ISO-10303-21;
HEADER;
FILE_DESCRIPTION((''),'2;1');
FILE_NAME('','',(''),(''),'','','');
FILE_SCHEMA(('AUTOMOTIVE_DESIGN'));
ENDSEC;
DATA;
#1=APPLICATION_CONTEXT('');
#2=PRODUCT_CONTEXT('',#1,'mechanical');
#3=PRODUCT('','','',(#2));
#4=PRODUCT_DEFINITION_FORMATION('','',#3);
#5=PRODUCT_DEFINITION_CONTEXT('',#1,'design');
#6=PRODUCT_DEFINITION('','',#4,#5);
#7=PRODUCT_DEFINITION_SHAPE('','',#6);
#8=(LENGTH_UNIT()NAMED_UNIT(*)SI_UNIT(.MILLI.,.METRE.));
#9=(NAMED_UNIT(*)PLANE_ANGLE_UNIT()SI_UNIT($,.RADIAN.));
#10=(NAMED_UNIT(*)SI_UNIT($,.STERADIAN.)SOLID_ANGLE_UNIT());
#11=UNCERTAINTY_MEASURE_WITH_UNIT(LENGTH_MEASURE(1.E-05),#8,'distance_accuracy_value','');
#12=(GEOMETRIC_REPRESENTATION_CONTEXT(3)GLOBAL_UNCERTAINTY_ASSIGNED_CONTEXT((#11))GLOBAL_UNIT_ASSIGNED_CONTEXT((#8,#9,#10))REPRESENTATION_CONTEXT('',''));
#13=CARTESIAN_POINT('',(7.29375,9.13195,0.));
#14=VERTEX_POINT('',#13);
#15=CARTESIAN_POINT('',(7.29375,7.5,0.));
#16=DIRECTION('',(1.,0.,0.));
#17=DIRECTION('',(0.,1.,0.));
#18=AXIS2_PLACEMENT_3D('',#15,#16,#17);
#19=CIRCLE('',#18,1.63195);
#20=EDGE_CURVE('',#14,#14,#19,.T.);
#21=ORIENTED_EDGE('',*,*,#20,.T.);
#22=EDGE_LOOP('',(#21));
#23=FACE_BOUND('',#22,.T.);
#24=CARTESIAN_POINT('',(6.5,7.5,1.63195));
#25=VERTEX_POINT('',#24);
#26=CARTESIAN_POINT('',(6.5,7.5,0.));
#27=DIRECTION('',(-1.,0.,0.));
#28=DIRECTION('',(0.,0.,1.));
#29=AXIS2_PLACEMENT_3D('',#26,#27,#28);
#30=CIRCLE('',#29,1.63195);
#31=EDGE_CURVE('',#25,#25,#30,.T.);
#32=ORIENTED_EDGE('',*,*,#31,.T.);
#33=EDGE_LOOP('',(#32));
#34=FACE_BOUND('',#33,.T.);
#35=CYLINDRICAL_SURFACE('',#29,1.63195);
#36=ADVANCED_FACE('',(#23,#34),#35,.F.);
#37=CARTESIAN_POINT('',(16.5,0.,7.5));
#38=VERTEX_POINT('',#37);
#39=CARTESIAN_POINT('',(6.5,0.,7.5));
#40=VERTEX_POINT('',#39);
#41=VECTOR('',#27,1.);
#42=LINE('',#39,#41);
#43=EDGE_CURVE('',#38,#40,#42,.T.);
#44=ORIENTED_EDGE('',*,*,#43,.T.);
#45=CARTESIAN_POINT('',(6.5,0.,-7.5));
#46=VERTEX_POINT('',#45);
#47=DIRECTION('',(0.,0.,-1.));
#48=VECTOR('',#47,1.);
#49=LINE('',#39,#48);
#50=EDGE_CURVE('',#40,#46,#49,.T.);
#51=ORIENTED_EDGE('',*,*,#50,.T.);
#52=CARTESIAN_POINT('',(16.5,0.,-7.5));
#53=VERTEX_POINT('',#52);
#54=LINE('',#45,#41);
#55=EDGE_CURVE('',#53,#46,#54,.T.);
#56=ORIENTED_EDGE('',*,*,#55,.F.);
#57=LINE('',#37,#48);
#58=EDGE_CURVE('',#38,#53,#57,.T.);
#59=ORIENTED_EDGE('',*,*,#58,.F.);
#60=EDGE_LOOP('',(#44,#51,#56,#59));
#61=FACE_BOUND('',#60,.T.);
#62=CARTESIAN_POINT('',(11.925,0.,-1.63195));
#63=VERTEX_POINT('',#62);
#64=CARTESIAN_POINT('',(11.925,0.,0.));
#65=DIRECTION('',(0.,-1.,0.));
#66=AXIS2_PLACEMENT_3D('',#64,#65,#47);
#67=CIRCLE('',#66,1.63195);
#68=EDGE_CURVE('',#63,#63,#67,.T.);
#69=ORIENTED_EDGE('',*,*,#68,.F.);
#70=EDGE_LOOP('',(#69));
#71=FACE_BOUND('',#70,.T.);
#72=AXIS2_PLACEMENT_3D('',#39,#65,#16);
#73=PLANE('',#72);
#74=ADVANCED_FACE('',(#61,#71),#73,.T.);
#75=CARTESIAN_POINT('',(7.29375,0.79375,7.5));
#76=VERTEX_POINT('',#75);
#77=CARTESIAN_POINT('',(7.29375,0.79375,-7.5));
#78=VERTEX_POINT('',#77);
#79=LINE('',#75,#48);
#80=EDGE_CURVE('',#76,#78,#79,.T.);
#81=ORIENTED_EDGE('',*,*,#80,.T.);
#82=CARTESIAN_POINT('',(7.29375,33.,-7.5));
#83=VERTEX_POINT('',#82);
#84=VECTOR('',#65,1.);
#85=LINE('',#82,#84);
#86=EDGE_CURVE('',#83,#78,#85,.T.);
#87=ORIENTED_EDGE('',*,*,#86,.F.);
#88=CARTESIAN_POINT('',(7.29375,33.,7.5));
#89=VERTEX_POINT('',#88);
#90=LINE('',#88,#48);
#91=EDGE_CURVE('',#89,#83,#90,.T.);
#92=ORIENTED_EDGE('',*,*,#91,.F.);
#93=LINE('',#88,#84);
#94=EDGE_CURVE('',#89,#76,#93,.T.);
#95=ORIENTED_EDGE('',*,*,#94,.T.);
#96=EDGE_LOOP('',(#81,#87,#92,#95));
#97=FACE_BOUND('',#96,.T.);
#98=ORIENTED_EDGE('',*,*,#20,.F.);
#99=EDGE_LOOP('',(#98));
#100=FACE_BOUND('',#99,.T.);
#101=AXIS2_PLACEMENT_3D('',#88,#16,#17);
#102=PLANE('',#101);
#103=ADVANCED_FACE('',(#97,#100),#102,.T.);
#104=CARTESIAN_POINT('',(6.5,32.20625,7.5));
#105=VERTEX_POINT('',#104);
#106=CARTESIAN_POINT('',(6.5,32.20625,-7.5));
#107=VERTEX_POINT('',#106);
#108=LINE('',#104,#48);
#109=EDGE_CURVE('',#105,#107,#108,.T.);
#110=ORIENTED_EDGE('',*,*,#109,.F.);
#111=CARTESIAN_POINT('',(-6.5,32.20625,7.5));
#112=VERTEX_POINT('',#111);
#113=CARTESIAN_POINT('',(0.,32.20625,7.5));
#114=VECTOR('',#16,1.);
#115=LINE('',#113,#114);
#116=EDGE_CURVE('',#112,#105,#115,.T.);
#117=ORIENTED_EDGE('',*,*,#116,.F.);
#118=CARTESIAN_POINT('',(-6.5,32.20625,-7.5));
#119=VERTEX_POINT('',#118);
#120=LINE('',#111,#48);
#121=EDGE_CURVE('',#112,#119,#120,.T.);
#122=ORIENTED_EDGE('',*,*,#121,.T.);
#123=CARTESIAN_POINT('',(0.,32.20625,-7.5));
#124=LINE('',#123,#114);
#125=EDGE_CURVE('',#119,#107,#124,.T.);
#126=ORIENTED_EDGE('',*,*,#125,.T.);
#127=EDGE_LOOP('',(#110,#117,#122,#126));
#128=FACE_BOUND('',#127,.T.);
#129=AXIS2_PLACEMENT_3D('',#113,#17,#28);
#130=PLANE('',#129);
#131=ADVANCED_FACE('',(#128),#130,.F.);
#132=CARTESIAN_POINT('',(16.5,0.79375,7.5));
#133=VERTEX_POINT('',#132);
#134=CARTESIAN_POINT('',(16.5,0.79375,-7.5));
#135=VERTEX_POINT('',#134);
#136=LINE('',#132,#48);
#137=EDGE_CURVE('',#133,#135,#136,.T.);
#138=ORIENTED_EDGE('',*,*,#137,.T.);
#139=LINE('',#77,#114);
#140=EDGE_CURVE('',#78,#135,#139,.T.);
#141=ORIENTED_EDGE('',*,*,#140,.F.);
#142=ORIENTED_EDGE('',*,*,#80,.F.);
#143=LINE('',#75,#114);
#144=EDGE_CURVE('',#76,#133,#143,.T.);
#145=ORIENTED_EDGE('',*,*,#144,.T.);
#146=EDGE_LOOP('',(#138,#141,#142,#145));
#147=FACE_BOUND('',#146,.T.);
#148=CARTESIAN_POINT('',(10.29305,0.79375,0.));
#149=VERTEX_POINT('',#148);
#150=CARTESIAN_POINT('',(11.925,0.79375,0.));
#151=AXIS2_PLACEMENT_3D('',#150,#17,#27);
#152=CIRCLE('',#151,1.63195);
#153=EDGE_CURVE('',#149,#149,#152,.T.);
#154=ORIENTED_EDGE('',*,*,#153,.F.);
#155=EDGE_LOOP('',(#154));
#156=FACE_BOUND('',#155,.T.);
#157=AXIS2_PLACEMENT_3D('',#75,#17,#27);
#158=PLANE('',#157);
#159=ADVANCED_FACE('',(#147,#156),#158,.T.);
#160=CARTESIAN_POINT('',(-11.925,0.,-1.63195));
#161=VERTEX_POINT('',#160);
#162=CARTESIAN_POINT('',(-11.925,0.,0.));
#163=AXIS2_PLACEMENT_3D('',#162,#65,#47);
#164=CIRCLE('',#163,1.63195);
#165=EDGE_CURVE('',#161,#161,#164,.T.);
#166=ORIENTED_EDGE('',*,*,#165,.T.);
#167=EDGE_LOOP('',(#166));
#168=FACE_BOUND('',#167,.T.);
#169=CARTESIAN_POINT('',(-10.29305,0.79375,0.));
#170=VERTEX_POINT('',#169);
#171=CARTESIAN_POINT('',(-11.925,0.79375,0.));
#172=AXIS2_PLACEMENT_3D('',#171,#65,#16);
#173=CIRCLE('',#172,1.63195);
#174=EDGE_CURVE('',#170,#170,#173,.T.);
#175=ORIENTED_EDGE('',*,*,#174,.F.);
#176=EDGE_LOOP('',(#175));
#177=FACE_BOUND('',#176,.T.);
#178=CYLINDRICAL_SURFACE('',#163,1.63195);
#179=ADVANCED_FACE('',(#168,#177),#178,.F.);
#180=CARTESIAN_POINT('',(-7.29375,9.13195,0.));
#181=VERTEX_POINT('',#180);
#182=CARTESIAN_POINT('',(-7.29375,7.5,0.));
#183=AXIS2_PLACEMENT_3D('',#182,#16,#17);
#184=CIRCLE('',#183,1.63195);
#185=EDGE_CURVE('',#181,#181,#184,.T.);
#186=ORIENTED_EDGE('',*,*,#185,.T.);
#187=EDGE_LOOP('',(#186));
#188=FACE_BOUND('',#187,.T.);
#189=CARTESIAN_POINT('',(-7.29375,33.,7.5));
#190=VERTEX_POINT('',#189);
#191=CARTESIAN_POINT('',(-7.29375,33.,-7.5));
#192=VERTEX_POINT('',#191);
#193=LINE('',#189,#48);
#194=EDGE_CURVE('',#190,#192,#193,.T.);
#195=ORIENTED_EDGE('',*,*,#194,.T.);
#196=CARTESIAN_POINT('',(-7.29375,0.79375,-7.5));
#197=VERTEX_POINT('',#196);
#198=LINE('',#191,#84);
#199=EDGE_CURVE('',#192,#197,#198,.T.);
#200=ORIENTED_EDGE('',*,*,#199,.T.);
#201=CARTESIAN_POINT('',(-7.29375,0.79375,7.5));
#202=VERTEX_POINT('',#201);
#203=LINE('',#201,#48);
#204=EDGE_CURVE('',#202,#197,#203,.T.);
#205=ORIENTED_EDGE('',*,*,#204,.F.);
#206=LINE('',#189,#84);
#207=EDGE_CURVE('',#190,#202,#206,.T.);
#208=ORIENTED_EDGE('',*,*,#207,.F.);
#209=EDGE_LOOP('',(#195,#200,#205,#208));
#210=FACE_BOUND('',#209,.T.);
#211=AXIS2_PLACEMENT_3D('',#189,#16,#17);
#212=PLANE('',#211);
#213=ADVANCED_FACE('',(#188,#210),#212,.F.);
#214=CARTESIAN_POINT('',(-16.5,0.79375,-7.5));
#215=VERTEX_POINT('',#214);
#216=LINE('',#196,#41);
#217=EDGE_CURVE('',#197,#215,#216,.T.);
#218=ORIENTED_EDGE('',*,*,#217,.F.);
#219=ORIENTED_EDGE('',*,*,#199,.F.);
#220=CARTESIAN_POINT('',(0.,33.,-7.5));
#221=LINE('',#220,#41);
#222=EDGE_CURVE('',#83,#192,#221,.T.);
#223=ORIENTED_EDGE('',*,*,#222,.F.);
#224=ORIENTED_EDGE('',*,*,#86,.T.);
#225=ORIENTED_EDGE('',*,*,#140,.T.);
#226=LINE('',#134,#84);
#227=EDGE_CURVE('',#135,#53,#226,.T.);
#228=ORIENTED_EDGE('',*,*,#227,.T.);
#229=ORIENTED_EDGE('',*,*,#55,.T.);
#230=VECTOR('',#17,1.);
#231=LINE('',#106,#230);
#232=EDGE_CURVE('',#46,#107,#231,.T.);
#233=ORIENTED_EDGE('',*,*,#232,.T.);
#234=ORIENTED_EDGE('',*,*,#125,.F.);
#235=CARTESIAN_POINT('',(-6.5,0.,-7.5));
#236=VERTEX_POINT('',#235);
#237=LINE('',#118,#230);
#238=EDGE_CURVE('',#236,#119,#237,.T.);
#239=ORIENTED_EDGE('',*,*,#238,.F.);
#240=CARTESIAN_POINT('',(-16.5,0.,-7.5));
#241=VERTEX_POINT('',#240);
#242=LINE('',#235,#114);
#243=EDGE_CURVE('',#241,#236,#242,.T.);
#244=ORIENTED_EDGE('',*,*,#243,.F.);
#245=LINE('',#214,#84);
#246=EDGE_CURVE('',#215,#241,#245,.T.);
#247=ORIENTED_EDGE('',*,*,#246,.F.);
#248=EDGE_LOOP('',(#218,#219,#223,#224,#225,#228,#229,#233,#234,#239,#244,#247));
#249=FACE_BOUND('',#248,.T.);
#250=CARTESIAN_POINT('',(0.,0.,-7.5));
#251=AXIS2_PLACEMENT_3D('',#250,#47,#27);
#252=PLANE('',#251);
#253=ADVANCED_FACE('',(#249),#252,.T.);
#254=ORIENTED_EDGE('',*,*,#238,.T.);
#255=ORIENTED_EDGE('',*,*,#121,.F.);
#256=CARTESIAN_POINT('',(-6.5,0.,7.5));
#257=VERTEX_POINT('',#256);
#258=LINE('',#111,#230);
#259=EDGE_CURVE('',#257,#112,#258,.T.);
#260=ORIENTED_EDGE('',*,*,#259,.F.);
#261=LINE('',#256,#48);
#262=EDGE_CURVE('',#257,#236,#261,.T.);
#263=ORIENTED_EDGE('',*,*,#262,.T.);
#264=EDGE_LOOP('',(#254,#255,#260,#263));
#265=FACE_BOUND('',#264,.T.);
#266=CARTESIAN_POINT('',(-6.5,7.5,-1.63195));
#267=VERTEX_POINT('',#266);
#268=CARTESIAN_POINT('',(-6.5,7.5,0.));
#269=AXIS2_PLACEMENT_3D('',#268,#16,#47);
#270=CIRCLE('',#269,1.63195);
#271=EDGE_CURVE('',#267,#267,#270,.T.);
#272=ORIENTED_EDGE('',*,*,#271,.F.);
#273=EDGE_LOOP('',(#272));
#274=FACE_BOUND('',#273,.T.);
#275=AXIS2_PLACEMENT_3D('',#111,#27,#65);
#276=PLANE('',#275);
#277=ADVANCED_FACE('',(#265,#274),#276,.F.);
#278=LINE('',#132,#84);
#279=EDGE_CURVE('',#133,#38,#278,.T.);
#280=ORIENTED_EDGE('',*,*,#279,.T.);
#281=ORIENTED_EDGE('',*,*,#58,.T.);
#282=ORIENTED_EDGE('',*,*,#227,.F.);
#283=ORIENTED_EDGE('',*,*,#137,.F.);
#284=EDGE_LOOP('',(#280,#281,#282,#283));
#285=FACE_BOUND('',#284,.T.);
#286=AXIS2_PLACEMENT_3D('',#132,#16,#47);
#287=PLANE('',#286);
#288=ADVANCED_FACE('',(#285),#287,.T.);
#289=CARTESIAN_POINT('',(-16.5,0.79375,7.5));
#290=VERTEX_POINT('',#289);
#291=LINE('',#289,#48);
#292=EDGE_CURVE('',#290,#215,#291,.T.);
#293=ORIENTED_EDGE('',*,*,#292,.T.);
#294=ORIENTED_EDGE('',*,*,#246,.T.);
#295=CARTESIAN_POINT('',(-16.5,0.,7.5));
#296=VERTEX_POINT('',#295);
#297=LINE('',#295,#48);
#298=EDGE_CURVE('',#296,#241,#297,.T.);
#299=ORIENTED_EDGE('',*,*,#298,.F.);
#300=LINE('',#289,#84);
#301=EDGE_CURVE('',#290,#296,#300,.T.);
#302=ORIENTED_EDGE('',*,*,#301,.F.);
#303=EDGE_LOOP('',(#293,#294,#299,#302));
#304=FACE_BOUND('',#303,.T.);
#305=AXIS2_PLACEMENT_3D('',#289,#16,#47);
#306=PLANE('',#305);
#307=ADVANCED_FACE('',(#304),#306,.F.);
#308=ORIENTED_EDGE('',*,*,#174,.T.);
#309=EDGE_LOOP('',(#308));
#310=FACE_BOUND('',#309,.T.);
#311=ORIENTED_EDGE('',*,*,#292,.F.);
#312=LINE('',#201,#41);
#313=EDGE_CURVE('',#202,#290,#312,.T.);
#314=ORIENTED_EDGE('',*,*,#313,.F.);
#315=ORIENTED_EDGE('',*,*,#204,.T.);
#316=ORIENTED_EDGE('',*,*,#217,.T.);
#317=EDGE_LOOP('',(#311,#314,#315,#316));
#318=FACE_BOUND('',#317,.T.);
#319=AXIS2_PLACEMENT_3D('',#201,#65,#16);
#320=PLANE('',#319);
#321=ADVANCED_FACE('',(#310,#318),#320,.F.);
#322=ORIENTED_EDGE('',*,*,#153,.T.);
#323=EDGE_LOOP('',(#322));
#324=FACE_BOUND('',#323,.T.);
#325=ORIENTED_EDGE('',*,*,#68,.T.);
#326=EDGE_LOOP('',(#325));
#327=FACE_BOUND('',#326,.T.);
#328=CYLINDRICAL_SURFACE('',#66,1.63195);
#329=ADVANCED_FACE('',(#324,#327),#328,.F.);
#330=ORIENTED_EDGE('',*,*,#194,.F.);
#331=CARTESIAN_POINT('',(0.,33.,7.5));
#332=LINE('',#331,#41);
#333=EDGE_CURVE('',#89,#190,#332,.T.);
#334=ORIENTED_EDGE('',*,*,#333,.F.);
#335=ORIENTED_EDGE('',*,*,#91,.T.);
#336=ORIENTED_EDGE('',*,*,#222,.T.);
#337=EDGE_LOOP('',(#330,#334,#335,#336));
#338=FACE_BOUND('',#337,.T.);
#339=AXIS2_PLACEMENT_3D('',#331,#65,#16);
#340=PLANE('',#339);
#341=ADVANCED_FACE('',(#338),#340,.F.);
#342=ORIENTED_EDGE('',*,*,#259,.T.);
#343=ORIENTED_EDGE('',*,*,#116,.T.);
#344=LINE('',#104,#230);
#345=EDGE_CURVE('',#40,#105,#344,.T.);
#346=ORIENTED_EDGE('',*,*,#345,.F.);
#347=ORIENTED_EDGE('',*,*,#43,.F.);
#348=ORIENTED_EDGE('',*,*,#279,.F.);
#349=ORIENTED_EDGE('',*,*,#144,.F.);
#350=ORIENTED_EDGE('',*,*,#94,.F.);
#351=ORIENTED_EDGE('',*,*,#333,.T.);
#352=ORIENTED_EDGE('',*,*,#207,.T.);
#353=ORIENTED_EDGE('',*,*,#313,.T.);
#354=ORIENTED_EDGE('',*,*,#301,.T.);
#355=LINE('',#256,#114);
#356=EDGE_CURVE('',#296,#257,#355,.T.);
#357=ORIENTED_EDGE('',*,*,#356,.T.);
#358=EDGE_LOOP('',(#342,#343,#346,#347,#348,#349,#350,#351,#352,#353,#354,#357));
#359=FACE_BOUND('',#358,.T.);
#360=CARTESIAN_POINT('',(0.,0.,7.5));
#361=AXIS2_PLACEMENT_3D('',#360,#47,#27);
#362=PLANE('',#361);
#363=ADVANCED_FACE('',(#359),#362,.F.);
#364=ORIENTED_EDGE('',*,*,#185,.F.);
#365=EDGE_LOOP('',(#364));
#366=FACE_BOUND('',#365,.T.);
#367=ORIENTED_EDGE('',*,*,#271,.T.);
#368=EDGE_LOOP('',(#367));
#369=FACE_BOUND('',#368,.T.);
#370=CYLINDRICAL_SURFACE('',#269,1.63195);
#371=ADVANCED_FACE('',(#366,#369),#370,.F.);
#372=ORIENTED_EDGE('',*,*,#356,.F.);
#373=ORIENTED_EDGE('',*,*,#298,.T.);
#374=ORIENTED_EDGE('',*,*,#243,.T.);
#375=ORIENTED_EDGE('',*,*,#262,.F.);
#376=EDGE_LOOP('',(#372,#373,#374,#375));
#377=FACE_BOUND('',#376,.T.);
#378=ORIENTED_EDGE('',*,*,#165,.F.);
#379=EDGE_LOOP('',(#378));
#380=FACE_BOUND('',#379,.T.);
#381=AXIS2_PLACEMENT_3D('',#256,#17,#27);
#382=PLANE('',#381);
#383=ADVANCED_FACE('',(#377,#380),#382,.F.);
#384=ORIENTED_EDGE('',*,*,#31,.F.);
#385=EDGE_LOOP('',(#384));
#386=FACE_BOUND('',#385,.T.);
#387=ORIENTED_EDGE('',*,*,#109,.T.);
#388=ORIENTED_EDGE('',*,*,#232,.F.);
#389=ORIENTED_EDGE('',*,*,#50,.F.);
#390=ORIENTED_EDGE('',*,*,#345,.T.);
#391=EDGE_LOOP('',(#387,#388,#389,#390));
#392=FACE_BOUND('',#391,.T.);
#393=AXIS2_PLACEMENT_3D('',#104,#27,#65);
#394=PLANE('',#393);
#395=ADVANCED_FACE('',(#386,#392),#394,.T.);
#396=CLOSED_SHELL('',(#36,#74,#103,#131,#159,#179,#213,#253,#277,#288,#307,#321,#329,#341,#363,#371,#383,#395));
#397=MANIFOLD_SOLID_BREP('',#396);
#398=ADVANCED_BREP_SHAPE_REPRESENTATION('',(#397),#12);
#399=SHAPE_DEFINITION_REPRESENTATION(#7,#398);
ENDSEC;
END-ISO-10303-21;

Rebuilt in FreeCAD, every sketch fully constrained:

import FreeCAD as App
import Part
import Sketcher
from FreeCAD import Vector


def add_polygon(sketch, points):
    """Adds a closed chain of lines whose ends are joined by coincident constraints."""
    first, n = sketch.GeometryCount, len(points)
    for a, b in zip(points, points[1:] + points[:1]):
        sketch.addGeometry(Part.LineSegment(App.Vector(*a, 0), App.Vector(*b, 0)), False)
    for i in range(n):
        sketch.addConstraint(Sketcher.Constraint("Coincident", first + i, 2, first + (i + 1) % n, 1))

doc = App.newDocument("Part")
body = doc.addObject("PartDesign::Body", "Body")

# Sketch on XY plane
sketch1 = body.newObject("Sketcher::SketchObject", "Sketch")
sketch1.AttachmentSupport = (doc.getObject("XY_Plane"), [""])
sketch1.MapMode = "FlatFace"
add_polygon(sketch1, [(-6.5, 32.20625), (0, 32.20625), (0, 33), (-7.29375, 33), (-7.29375, 0.79375), (-16.5, 0.79375), (-16.5, 0), (-6.5, 0)])  # lines 0-7
sketch1.addConstraint(Sketcher.Constraint("Horizontal", 0))
sketch1.addConstraint(Sketcher.Constraint("Vertical", 1))
sketch1.addConstraint(Sketcher.Constraint("Horizontal", 2))
sketch1.addConstraint(Sketcher.Constraint("Vertical", 3))
sketch1.addConstraint(Sketcher.Constraint("Horizontal", 4))
sketch1.addConstraint(Sketcher.Constraint("Vertical", 5))
sketch1.addConstraint(Sketcher.Constraint("Horizontal", 6))
sketch1.addConstraint(Sketcher.Constraint("Vertical", 7))
sketch1.addConstraint(Sketcher.Constraint("PointOnObject", 0, 2, -2))
sketch1.addConstraint(Sketcher.Constraint("PointOnObject", 5, 2, -1))
sketch1.addConstraint(Sketcher.Constraint("Equal", 1, 5))
sketch1.addConstraint(Sketcher.Constraint("DistanceX", 6, 1, 6, 2, 10.0))
sketch1.addConstraint(Sketcher.Constraint("DistanceX", 0, 1, 0, 2, 6.5))
sketch1.addConstraint(Sketcher.Constraint("DistanceY", -1, 1, 1, 2, 33.0))
sketch1.addConstraint(Sketcher.Constraint("DistanceX", 2, 2, 2, 1, 7.29375))
sketch1.addConstraint(Sketcher.Constraint("DistanceY", 1, 1, 1, 2, 0.79375))
pad1 = body.newObject("PartDesign::Pad", "Pad")
pad1.Profile = sketch1
pad1.Length = 15
pad1.Midplane = True

# Sketch on YZ plane
sketch2 = body.newObject("Sketcher::SketchObject", "Sketch001")
sketch2.AttachmentSupport = (doc.getObject("YZ_Plane"), [""])
sketch2.MapMode = "FlatFace"
sketch2.AttachmentOffset = App.Placement(Vector(0, 0, -6.5), App.Rotation())
sketch2.addGeometry(Part.Circle(Vector(7.5, 0, 0), Vector(0, 0, 1), 1.63195), False)
sketch2.addConstraint(Sketcher.Constraint("PointOnObject", 0, 3, -1))
sketch2.addConstraint(Sketcher.Constraint("Diameter", 0, 3.2639))
sketch2.addConstraint(Sketcher.Constraint("DistanceX", -1, 1, 0, 3, 7.5))
doc.recompute()
hole = body.newObject("PartDesign::Hole", "Hole")
hole.Profile = sketch2
hole.ThreadType = "None"
hole.Diameter = 3.2639
hole.DepthType = "ThroughAll"
doc.recompute()

mirrored = body.newObject("PartDesign::Mirrored", "Mirrored")
mirrored.Originals = [pad1, hole]
mirrored.MirrorPlane = (doc.getObject("YZ_Plane"), [""])
body.Tip = mirrored

# Sketch on XZ plane
sketch3 = body.newObject("Sketcher::SketchObject", "Sketch002")
sketch3.AttachmentSupport = (doc.getObject("XZ_Plane"), [""])
sketch3.MapMode = "FlatFace"
sketch3.addGeometry(Part.Circle(Vector(-11.925, 0, 0), Vector(0, 0, 1), 1.63195), False)
sketch3.addGeometry(Part.Circle(Vector(11.925, 0, 0), Vector(0, 0, 1), 1.63195), False)
sketch3.addConstraint(Sketcher.Constraint("Equal", 0, 1))
sketch3.addConstraint(Sketcher.Constraint("Symmetric", 0, 3, 1, 3, -1, 1))
sketch3.addConstraint(Sketcher.Constraint("PointOnObject", 0, 3, -1))
sketch3.addConstraint(Sketcher.Constraint("Diameter", 0, 3.2639))
sketch3.addConstraint(Sketcher.Constraint("DistanceX", 0, 3, 1, 3, 23.85))
doc.recompute()
hole2 = body.newObject("PartDesign::Hole", "Hole001")
hole2.Profile = sketch3
hole2.ThreadType = "None"
hole2.Diameter = 3.2639
hole2.DepthType = "ThroughAll"

doc.recompute()
